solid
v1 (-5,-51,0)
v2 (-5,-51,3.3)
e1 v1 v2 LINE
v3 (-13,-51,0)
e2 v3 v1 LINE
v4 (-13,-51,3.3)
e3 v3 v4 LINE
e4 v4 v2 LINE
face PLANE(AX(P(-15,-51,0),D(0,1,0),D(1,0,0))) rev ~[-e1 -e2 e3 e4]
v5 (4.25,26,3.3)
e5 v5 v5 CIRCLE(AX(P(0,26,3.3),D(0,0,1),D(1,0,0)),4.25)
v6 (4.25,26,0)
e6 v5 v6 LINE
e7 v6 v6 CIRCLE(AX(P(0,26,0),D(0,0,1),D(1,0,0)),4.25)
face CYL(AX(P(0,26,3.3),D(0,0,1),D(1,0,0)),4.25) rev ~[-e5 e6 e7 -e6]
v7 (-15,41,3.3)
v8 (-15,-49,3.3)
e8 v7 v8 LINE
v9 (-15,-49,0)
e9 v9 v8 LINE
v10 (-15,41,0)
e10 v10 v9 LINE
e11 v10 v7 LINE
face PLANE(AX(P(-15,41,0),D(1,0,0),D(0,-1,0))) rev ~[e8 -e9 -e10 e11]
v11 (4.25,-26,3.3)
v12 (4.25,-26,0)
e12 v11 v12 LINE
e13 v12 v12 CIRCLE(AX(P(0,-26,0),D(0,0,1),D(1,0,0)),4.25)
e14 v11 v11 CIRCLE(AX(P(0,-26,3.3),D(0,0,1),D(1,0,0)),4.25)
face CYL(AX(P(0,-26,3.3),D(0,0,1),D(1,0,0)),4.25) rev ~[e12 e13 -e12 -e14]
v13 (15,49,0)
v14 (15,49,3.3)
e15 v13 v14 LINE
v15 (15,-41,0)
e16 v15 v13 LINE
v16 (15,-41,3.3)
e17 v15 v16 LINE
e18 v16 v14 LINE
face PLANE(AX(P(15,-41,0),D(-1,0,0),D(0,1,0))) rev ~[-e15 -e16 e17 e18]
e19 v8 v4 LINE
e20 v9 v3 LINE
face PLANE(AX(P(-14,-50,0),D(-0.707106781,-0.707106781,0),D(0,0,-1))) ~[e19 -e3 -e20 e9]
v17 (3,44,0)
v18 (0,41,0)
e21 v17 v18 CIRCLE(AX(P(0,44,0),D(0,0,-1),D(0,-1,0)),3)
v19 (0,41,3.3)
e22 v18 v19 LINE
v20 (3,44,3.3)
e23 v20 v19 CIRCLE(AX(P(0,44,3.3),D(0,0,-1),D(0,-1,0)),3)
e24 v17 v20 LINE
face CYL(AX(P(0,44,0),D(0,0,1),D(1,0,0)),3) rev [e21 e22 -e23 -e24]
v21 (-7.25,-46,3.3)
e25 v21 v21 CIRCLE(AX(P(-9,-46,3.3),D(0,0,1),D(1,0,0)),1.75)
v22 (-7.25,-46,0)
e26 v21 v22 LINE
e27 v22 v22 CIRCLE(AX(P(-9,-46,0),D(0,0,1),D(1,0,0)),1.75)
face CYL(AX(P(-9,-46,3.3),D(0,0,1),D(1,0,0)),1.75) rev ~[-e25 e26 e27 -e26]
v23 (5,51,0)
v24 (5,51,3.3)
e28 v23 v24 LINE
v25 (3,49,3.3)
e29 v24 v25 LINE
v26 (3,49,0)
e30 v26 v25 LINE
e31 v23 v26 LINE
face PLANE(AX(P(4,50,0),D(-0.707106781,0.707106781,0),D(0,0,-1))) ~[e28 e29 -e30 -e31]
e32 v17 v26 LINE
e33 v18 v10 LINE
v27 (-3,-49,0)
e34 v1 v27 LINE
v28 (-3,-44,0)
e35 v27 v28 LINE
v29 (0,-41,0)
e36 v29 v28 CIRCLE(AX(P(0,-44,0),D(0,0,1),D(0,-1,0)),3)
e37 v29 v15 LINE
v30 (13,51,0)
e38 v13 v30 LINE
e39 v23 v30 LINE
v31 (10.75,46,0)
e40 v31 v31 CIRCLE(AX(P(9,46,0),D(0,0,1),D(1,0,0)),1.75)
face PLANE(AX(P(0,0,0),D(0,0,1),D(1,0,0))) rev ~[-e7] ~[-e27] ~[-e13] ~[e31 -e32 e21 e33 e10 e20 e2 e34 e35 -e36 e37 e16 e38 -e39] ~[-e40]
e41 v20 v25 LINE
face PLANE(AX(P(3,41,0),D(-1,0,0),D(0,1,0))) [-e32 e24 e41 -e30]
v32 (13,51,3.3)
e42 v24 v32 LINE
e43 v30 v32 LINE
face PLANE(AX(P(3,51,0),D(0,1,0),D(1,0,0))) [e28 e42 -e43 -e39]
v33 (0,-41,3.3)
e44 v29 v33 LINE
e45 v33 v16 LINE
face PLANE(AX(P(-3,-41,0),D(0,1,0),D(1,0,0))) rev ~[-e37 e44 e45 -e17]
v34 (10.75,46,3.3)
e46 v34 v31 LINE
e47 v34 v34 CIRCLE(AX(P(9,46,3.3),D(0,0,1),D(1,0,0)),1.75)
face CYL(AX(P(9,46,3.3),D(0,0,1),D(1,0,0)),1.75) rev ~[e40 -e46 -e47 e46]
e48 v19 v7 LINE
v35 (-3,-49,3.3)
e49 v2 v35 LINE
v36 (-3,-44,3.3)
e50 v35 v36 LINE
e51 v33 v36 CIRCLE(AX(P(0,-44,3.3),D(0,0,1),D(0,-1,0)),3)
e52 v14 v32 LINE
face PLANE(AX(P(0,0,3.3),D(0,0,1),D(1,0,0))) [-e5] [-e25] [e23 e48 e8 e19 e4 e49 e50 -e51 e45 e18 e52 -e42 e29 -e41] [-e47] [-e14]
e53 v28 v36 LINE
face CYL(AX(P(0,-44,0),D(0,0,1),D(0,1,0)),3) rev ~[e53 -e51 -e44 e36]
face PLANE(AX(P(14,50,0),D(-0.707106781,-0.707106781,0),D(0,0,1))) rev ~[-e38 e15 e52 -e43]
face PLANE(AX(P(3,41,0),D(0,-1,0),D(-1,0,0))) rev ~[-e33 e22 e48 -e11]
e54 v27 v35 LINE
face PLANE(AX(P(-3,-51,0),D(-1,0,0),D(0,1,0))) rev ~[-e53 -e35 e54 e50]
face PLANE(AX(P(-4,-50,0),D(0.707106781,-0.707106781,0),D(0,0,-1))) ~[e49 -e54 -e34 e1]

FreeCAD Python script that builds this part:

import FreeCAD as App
import Part
import Sketcher
from FreeCAD import Vector
Q = App.Units.Quantity


def edges_at(feature, points):
    """Names of the edges that pass closest to the given points."""
    edges = feature.Shape.Edges
    near = lambda p: min(range(len(edges)), key=lambda i: edges[i].distToShape(Part.Vertex(*p))[0])
    return sorted({f"Edge{near(p) + 1}" for p in points})

doc = App.newDocument("Part")
body = doc.addObject("PartDesign::Body", "Body")

# Sketch on XY plane
sketch1 = body.newObject("Sketcher::SketchObject", "Sketch")
sketch1.AttachmentSupport = (doc.getObject("XY_Plane"), [""])
sketch1.MapMode = "FlatFace"
sketch1.addGeometry([
    Part.LineSegment(Vector(15, -41, 0), Vector(15, 51, 0)),  # 0
    Part.LineSegment(Vector(15, 51, 0), Vector(3, 51, 0)),  # 1
    Part.LineSegment(Vector(3, 51, 0), Vector(3, 41, 0)),  # 2
    Part.LineSegment(Vector(3, 41, 0), Vector(-15, 41, 0)),  # 3
    Part.LineSegment(Vector(-15, 41, 0), Vector(-15, -51, 0)),  # 4
    Part.LineSegment(Vector(-15, -51, 0), Vector(-3, -51, 0)),  # 5
    Part.LineSegment(Vector(-3, -51, 0), Vector(-3, -41, 0)),  # 6
    Part.LineSegment(Vector(-3, -41, 0), Vector(15, -41, 0)),  # 7
], False)
sketch1.addConstraint([
    Sketcher.Constraint("Coincident", 0, 2, 1, 1),
    Sketcher.Constraint("Coincident", 1, 2, 2, 1),
    Sketcher.Constraint("Coincident", 2, 2, 3, 1),
    Sketcher.Constraint("Coincident", 3, 2, 4, 1),
    Sketcher.Constraint("Coincident", 4, 2, 5, 1),
    Sketcher.Constraint("Coincident", 5, 2, 6, 1),
    Sketcher.Constraint("Coincident", 6, 2, 7, 1),
    Sketcher.Constraint("Coincident", 7, 2, 0, 1),
    Sketcher.Constraint("Vertical", 0),
    Sketcher.Constraint("Horizontal", 1),
    Sketcher.Constraint("Vertical", 2),
    Sketcher.Constraint("Horizontal", 3),
    Sketcher.Constraint("Vertical", 4),
    Sketcher.Constraint("Horizontal", 5),
    Sketcher.Constraint("Vertical", 6),
    Sketcher.Constraint("Horizontal", 7),
    Sketcher.Constraint("Symmetric", 0, 2, 4, 2, -1, 1),
    Sketcher.Constraint("Symmetric", 2, 2, 6, 2, -1, 1),
    Sketcher.Constraint("DistanceX", 1, 2, 1, 1, Q("12 mm")),
    Sketcher.Constraint("DistanceX", 3, 2, 3, 1, Q("18 mm")),
    Sketcher.Constraint("DistanceY", 0, 1, 0, 2, Q("92 mm")),
    Sketcher.Constraint("DistanceY", 2, 2, 2, 1, Q("10 mm")),
])
pad1 = body.newObject("PartDesign::Pad", "Pad")
pad1.Profile = sketch1
pad1.Length = 3.3
doc.recompute()

chamfer = body.newObject("PartDesign::Chamfer", "Chamfer")
chamfer.Base = (pad1, edges_at(pad1, [
    (15, 51, 1.65),
    (3, 51, 1.65),
    (-15, -51, 1.65),
    (-3, -51, 1.65),
]))
chamfer.Size = 2
doc.recompute()

fillet = body.newObject("PartDesign::Fillet", "Fillet")
fillet.Base = (chamfer, edges_at(chamfer, [(3, 41, 1.65)]))
fillet.Radius = 3
doc.recompute()

fillet2 = body.newObject("PartDesign::Fillet", "Fillet001")
fillet2.Base = (fillet, edges_at(fillet, [(-3, -41, 1.65)]))
fillet2.Radius = 3

# Sketch on XY plane
sketch2 = body.newObject("Sketcher::SketchObject", "Sketch001")
sketch2.AttachmentSupport = (doc.getObject("XY_Plane"), [""])
sketch2.MapMode = "FlatFace"
sketch2.AttachmentOffset = App.Placement(Vector(0, 0, 3.3), App.Rotation())
sketch2.addGeometry([
    Part.Circle(Vector(9, 46, 0), Vector(0, 0, 1), 1.8),
    Part.Circle(Vector(-9, -46, 0), Vector(0, 0, 1), 1.8),
], False)
sketch2.addConstraint([
    Sketcher.Constraint("Equal", 0, 1),
    Sketcher.Constraint("Symmetric", 0, 3, 1, 3, -1, 1),
    Sketcher.Constraint("Diameter", 0, Q("3.5 mm")),
    Sketcher.Constraint("DistanceX", -1, 1, 0, 3, Q("9 mm")),
    Sketcher.Constraint("DistanceY", -1, 1, 0, 3, Q("46 mm")),
])
pocket1 = body.newObject("PartDesign::Pocket", "Pocket")
pocket1.Profile = sketch2
pocket1.Length = 25

# Sketch on XY plane
sketch3 = body.newObject("Sketcher::SketchObject", "Sketch002")
sketch3.AttachmentSupport = (doc.getObject("XY_Plane"), [""])
sketch3.MapMode = "FlatFace"
sketch3.AttachmentOffset = App.Placement(Vector(0, 0, 3.3), App.Rotation())
sketch3.addGeometry([
    Part.Circle(Vector(0, 26, 0), Vector(0, 0, 1), 2.5),
    Part.Circle(Vector(0, -26, 0), Vector(0, 0, 1), 2.5),
], False)
sketch3.addConstraint([
    Sketcher.Constraint("Equal", 0, 1),
    Sketcher.Constraint("Symmetric", 0, 3, 1, 3, -1, 1),
    Sketcher.Constraint("PointOnObject", 0, 3, -2),
    Sketcher.Constraint("Diameter", 0, Q("5 mm")),
    Sketcher.Constraint("DistanceY", -1, 1, 0, 3, Q("26 mm")),
])
pocket2 = body.newObject("PartDesign::Pocket", "Pocket001")
pocket2.Profile = sketch3
pocket2.Length = 25

# Sketch on XY plane
sketch4 = body.newObject("Sketcher::SketchObject", "Sketch003")
sketch4.AttachmentSupport = (doc.getObject("XY_Plane"), [""])
sketch4.MapMode = "FlatFace"
sketch4.AttachmentOffset = App.Placement(Vector(0, 0, 3.3), App.Rotation())
sketch4.addGeometry([
    Part.Circle(Vector(0, 26, 0), Vector(0, 0, 1), 4.2),
    Part.Circle(Vector(0, -26, 0), Vector(0, 0, 1), 4.2),
], False)
sketch4.addConstraint([
    Sketcher.Constraint("Equal", 0, 1),
    Sketcher.Constraint("Symmetric", 0, 3, 1, 3, -1, 1),
    Sketcher.Constraint("PointOnObject", 0, 3, -2),
    Sketcher.Constraint("Diameter", 0, Q("8.5 mm")),
    Sketcher.Constraint("DistanceY", -1, 1, 0, 3, Q("26 mm")),
])
pocket3 = body.newObject("PartDesign::Pocket", "Pocket002")
pocket3.Profile = sketch4
pocket3.Length = 25

doc.recompute()
